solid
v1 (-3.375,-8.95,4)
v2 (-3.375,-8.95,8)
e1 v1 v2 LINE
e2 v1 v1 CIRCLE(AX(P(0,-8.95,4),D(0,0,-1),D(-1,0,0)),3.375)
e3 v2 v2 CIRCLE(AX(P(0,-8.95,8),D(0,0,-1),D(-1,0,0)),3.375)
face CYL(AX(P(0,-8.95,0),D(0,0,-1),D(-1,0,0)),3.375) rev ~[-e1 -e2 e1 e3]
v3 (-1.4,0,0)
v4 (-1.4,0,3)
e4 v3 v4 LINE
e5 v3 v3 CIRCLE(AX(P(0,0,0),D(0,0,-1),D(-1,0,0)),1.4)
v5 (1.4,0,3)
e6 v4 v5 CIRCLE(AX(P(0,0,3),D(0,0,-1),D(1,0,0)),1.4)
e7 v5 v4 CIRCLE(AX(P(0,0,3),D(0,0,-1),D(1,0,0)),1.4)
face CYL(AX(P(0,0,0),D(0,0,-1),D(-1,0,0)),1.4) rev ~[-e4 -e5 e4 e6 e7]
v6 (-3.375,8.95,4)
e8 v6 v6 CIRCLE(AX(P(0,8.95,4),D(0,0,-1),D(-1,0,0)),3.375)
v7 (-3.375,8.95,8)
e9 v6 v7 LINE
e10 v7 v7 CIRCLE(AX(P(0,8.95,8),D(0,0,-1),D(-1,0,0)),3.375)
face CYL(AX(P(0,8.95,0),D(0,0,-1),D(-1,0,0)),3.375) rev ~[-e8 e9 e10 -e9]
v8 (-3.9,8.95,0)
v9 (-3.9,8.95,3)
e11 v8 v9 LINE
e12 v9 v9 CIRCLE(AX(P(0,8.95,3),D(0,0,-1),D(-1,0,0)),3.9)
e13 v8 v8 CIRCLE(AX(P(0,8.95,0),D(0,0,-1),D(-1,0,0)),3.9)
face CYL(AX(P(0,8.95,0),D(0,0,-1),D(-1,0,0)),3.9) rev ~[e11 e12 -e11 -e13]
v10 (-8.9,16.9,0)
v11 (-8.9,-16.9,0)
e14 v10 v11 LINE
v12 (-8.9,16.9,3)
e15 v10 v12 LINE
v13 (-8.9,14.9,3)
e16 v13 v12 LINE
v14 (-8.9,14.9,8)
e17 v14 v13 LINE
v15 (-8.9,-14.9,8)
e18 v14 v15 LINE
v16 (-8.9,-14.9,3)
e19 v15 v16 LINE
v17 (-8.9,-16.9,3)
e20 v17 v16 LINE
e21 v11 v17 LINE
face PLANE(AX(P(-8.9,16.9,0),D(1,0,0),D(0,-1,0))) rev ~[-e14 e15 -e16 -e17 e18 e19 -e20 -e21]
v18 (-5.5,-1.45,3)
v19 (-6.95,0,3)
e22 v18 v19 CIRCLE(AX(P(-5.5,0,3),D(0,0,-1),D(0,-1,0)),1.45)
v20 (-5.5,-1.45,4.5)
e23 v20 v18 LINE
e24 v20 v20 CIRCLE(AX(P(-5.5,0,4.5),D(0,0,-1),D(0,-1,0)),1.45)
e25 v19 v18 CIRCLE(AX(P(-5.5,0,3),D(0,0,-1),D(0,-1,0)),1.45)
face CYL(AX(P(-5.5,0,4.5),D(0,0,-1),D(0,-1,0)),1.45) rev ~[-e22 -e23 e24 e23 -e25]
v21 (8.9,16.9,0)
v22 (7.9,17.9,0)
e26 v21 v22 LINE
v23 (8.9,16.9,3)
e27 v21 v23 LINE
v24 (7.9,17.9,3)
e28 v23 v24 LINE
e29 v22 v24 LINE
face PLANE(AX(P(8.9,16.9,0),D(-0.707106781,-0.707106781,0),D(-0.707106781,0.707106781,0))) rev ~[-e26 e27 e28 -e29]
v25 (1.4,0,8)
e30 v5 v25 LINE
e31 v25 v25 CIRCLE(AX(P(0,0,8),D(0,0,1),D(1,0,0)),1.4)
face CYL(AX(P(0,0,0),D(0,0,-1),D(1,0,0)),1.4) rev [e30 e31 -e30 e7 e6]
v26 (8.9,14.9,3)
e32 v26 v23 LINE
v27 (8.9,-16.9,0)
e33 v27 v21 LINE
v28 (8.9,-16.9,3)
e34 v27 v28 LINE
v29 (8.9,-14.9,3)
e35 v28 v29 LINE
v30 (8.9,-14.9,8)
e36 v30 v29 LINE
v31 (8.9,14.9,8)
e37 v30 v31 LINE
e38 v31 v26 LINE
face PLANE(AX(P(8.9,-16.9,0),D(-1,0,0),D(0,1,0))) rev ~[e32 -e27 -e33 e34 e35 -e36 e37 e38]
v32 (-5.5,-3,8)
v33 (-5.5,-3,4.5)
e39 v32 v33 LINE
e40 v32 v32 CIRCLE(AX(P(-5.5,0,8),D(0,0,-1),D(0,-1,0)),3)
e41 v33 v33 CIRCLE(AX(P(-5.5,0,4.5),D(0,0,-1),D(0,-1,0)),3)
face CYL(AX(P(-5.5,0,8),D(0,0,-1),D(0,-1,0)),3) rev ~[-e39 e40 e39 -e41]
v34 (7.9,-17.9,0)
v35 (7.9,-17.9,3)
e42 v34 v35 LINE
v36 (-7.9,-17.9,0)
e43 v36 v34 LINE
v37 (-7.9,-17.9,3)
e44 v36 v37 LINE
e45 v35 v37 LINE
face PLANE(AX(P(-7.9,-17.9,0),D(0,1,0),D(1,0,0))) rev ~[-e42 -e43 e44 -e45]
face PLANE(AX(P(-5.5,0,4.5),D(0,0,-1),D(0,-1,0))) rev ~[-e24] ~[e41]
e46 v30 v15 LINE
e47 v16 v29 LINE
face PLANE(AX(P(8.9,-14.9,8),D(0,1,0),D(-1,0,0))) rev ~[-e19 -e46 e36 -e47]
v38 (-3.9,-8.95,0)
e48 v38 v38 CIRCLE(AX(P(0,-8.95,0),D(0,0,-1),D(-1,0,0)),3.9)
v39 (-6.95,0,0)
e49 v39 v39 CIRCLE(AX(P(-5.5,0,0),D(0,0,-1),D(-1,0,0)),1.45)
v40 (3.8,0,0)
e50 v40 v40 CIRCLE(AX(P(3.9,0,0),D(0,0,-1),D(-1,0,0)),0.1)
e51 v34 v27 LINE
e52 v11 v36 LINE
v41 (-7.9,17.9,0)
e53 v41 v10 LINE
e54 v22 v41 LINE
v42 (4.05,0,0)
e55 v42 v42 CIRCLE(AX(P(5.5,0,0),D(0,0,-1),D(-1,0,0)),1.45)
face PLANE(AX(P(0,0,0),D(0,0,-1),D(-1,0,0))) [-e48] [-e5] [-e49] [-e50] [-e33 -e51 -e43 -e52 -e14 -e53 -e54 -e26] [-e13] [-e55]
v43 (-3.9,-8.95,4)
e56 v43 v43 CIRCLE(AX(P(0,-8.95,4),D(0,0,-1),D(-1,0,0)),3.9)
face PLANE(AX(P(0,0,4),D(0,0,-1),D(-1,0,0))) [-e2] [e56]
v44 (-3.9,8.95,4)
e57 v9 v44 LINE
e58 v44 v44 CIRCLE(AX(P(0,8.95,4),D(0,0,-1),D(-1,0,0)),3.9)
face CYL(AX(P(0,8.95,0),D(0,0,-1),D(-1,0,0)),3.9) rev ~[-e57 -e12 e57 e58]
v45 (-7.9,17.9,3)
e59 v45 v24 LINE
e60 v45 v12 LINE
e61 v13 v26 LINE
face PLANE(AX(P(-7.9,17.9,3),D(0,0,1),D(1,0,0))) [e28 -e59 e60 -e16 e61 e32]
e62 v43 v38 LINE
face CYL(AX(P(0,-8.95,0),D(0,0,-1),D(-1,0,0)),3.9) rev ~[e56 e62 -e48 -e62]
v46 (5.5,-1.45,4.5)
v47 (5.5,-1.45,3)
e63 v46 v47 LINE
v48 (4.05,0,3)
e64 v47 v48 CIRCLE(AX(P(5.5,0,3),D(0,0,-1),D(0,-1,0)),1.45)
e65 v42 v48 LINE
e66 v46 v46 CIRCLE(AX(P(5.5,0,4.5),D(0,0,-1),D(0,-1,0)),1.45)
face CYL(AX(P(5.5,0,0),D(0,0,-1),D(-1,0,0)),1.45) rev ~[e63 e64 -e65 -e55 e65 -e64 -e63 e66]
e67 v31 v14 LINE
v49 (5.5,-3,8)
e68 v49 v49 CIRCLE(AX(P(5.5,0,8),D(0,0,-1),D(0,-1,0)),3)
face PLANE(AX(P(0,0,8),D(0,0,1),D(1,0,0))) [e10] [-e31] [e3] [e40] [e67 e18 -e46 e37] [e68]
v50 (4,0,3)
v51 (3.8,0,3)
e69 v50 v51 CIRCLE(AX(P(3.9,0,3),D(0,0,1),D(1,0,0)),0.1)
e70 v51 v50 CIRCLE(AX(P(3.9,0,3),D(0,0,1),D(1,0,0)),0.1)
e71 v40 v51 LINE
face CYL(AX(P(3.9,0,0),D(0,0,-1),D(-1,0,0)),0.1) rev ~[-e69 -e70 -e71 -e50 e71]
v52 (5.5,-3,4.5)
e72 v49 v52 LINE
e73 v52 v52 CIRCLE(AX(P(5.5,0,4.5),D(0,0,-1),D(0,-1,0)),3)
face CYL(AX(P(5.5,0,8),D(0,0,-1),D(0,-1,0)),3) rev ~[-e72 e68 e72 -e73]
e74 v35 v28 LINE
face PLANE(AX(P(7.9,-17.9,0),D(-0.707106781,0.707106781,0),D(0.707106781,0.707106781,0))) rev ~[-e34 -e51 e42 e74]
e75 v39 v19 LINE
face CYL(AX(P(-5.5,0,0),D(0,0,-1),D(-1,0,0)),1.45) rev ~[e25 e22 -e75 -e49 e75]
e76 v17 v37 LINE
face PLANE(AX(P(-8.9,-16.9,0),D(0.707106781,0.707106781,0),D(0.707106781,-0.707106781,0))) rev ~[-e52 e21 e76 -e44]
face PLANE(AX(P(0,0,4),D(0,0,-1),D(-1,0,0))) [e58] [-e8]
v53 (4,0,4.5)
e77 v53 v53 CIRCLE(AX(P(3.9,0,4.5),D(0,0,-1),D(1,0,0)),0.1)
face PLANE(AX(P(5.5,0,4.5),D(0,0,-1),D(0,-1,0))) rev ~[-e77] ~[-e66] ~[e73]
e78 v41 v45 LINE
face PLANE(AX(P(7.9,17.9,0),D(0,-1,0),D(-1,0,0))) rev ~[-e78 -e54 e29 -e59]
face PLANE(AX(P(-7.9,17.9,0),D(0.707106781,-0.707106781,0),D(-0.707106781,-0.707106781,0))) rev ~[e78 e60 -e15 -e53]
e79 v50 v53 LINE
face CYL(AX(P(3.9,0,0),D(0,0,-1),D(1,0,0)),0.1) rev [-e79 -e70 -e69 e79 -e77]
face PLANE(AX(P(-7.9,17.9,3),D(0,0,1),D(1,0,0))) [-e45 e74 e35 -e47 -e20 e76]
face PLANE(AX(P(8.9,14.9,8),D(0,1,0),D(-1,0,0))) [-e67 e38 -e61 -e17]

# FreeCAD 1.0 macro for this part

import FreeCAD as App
import Part
import Sketcher
from FreeCAD import Vector
Q = App.Units.Quantity


def add_polygon(sketch, points):
    """Adds a closed chain of lines whose ends are joined by coincident constraints."""
    first, n = sketch.GeometryCount, len(points)
    for a, b in zip(points, points[1:] + points[:1]):
        sketch.addGeometry(Part.LineSegment(App.Vector(*a, 0), App.Vector(*b, 0)), False)
    for i in range(n):
        sketch.addConstraint(Sketcher.Constraint("Coincident", first + i, 2, first + (i + 1) % n, 1))

doc = App.newDocument("Part")
params = doc.addObject("Spreadsheet::Sheet", "Params")
for row, (alias, value) in enumerate([
    ("sketch1_diameter", "2.8 mm"),
    ("sketch1_diameter2", "0.2 mm"),
    ("sketch1_width", "15.8 mm"),
    ("sketch1_height", "33.8 mm"),
    ("pad1_length", "8 mm"),
    ("sketch2_diameter", "2.9 mm"),
    ("hole_diameter", "2.9 mm"),
    ("hole_cbore_diameter", "6 mm"),
    ("hole_cbore_depth", "3.5 mm"),
    ("sketch3_diameter", "6.75 mm"),
    ("pocket1_length", "10 mm"),
    ("sketch4_diameter", "7.8 mm"),
    ("sketch4_diameter2", "6.75 mm"),
    ("pocket2_length", "4 mm"),
    ("sketch5_diameter", "0.2 mm"),
    ("pocket3_length", "3 mm"),
    ("sketch6_height", "3 mm"),
    ("sketch6_width", "17.8 mm"),
    ("pocket4_length", "5 mm"),
    ("sketch7_height", "3 mm"),
    ("sketch7_width", "14.8 mm"),
    ("pad2_length", "3 mm"),
    ("sketch8_diameter", "7.8 mm"),
    ("sketch8_diameter2", "2.9 mm"),
    ("sketch8_diameter3", "0.2 mm"),
    ("sketch8_diameter4", "2.8 mm"),
    ("sketch8_width", "14.8 mm"),
    ("pad3_length", "3 mm"),
], start=1):
    params.set(f"A{row}", alias)
    params.set(f"B{row}", "=" + value)
    params.setAlias(f"B{row}", alias)

body = doc.addObject("PartDesign::Body", "Body")

# Sketch on XY plane
sketch1 = body.newObject("Sketcher::SketchObject", "Sketch")
sketch1.AttachmentSupport = (doc.getObject("XY_Plane"), [""])
sketch1.MapMode = "FlatFace"
add_polygon(sketch1, [(8.9, -16.9), (8.9, 16.9), (7.9, 17.9), (-7.9, 17.9), (-8.9, 16.9), (-8.9, -16.9), (-7.9, -17.9), (7.9, -17.9)])  # lines 0-7
sketch1.addGeometry(Part.Circle(Vector(0, 0, 0), Vector(0, 0, 1), 1.4), False)  # 8
sketch1.addGeometry(Part.Circle(Vector(3.9, 0, 0), Vector(0, 0, 1), 0.1), False)  # 9
sketch1.addConstraint([
    Sketcher.Constraint("Vertical", 0),
    Sketcher.Constraint("Horizontal", 2),
    Sketcher.Constraint("Vertical", 4),
    Sketcher.Constraint("Horizontal", 6),
    Sketcher.Constraint("Coincident", 8, 3, -1, 1),
    Sketcher.Constraint("Symmetric", 0, 2, 4, 2, -1, 1),
    Sketcher.Constraint("Symmetric", 1, 2, 5, 2, -1, 1),
    Sketcher.Constraint("PointOnObject", 9, 3, -1),
    Sketcher.Constraint("Perpendicular", 1, 3),
    Sketcher.Constraint("Perpendicular", 5, 7),
    Sketcher.Constraint("Horizontal", 0, 2, 3, 2),
    Sketcher.Constraint("Horizontal", 4, 2, 7, 2),
    Sketcher.Constraint("Vertical", 2, 2, 5, 2),
    Sketcher.Constraint("Diameter", 8, Q("2.8 mm")),
    Sketcher.Constraint("Diameter", 9, Q("0.2 mm")),
    Sketcher.Constraint("DistanceX", 2, 2, 2, 1, Q("15.8 mm")),
    Sketcher.Constraint("DistanceY", 0, 1, 0, 2, Q("33.8 mm")),
    Sketcher.Constraint("DistanceX", 9, 3, 0, 2, Q("5 mm")),
    Sketcher.Constraint("DistanceX", 1, 2, 0, 2, Q("1 mm")),
])
sketch1.setExpression("Constraints[21]", "Params.sketch1_diameter")
sketch1.setExpression("Constraints[22]", "Params.sketch1_diameter2")
sketch1.setExpression("Constraints[23]", "Params.sketch1_width")
sketch1.setExpression("Constraints[24]", "Params.sketch1_height")
pad1 = body.newObject("PartDesign::Pad", "Pad")
pad1.Profile = sketch1
pad1.setExpression("Length", "Params.pad1_length")

# Sketch on XY plane
sketch2 = body.newObject("Sketcher::SketchObject", "Sketch001")
sketch2.AttachmentSupport = (doc.getObject("XY_Plane"), [""])
sketch2.MapMode = "FlatFace"
sketch2.AttachmentOffset = App.Placement(Vector(0, 0, 8), App.Rotation())
sketch2.addGeometry([
    Part.Circle(Vector(5.5, 0, 0), Vector(0, 0, 1), 1.4),
    Part.Circle(Vector(-5.5, 0, 0), Vector(0, 0, 1), 1.4),
], False)
sketch2.addConstraint([
    Sketcher.Constraint("Equal", 0, 1),
    Sketcher.Constraint("Symmetric", 0, 3, 1, 3, -1, 1),
    Sketcher.Constraint("PointOnObject", 0, 3, -1),
    Sketcher.Constraint("Diameter", 0, Q("2.9 mm")),
    Sketcher.Constraint("DistanceX", 1, 3, 0, 3, Q("11 mm")),
])
sketch2.setExpression("Constraints[3]", "Params.sketch2_diameter")
doc.recompute()
hole = body.newObject("PartDesign::Hole", "Hole")
hole.Profile = sketch2
hole.ThreadType = "None"
hole.setExpression("Diameter", "Params.hole_diameter")
hole.DepthType = "ThroughAll"
hole.HoleCutType = "Counterbore"
hole.setExpression("HoleCutDiameter", "Params.hole_cbore_diameter")
hole.setExpression("HoleCutDepth", "Params.hole_cbore_depth")

# Sketch on XY plane
sketch3 = body.newObject("Sketcher::SketchObject", "Sketch002")
sketch3.AttachmentSupport = (doc.getObject("XY_Plane"), [""])
sketch3.MapMode = "FlatFace"
sketch3.addGeometry([
    Part.Circle(Vector(0, 8.9, 0), Vector(0, 0, 1), 3.4),
    Part.Circle(Vector(0, -8.9, 0), Vector(0, 0, 1), 3.4),
], False)
sketch3.addConstraint([
    Sketcher.Constraint("Equal", 0, 1),
    Sketcher.Constraint("Symmetric", 0, 3, 1, 3, -1, 1),
    Sketcher.Constraint("PointOnObject", 0, 3, -2),
    Sketcher.Constraint("Diameter", 0, Q("6.75 mm")),
    Sketcher.Constraint("DistanceY", 1, 3, 0, 3, Q("17.9 mm")),
])
sketch3.setExpression("Constraints[3]", "Params.sketch3_diameter")
pocket1 = body.newObject("PartDesign::Pocket", "Pocket")
pocket1.Profile = sketch3
pocket1.setExpression("Length", "Params.pocket1_length")
pocket1.Reversed = True

# Sketch on XY plane
sketch4 = body.newObject("Sketcher::SketchObject", "Sketch003")
sketch4.AttachmentSupport = (doc.getObject("XY_Plane"), [""])
sketch4.MapMode = "FlatFace"
sketch4.addGeometry([
    Part.Circle(Vector(0, 8.9, 0), Vector(0, 0, 1), 3.9),
    Part.Circle(Vector(0, 8.9, 0), Vector(0, 0, 1), 3.4),
    Part.Circle(Vector(0, -8.9, 0), Vector(0, 0, 1), 3.9),
    Part.Circle(Vector(0, -8.9, 0), Vector(0, 0, 1), 3.4),
], False)
sketch4.addConstraint([
    Sketcher.Constraint("Coincident", 1, 3, 0, 3),
    Sketcher.Constraint("Coincident", 3, 3, 2, 3),
    Sketcher.Constraint("Equal", 0, 2),
    Sketcher.Constraint("Equal", 1, 3),
    Sketcher.Constraint("Symmetric", 0, 3, 2, 3, -1, 1),
    Sketcher.Constraint("PointOnObject", 0, 3, -2),
    Sketcher.Constraint("Diameter", 0, Q("7.8 mm")),
    Sketcher.Constraint("Diameter", 1, Q("6.75 mm")),
    Sketcher.Constraint("DistanceY", 2, 3, 0, 3, Q("17.9 mm")),
])
sketch4.setExpression("Constraints[6]", "Params.sketch4_diameter")
sketch4.setExpression("Constraints[7]", "Params.sketch4_diameter2")
pocket2 = body.newObject("PartDesign::Pocket", "Pocket001")
pocket2.Profile = sketch4
pocket2.setExpression("Length", "Params.pocket2_length")
pocket2.Reversed = True

# Sketch on XY plane
sketch5 = body.newObject("Sketcher::SketchObject", "Sketch004")
sketch5.AttachmentSupport = (doc.getObject("XY_Plane"), [""])
sketch5.MapMode = "FlatFace"
add_polygon(sketch5, [(-7.28, -16.4), (-7.4, -16.28), (-7.4, 16.28), (-7.28, 16.4), (7.28, 16.4), (7.4, 16.28), (7.4, -16.28), (7.28, -16.4)])  # lines 0-7
sketch5.addGeometry(Part.Circle(Vector(3.9, 0, 0), Vector(0, 0, 1), 0.1), False)  # 8
sketch5.addConstraint([
    Sketcher.Constraint("Vertical", 1),
    Sketcher.Constraint("Horizontal", 3),
    Sketcher.Constraint("Vertical", 5),
    Sketcher.Constraint("Horizontal", 7),
    Sketcher.Constraint("Symmetric", 0, 2, 4, 2, -1, 1),
    Sketcher.Constraint("Symmetric", 2, 2, 6, 2, -1, 1),
    Sketcher.Constraint("PointOnObject", 8, 3, -1),
    Sketcher.Constraint("Perpendicular", 0, 2),
    Sketcher.Constraint("Perpendicular", 2, 4),
    Sketcher.Constraint("Perpendicular", 4, 6),
    Sketcher.Constraint("Horizontal", 1, 2, 4, 2),
    Sketcher.Constraint("Vertical", 3, 2, 6, 2),
    Sketcher.Constraint("Diameter", 8, Q("0.2 mm")),
    Sketcher.Constraint("DistanceX", -1, 1, 8, 3, Q("3.9 mm")),
    Sketcher.Constraint("DistanceX", 0, 2, -1, 1, Q("7.4 mm")),
    Sketcher.Constraint("DistanceY", -1, 1, 2, 2, Q("16.4 mm")),
    Sketcher.Constraint("DistanceX", 3, 1, 3, 2, Q("14.5574 mm")),
])
sketch5.setExpression("Constraints[20]", "Params.sketch5_diameter")
pocket3 = body.newObject("PartDesign::Pocket", "Pocket002")
pocket3.Profile = sketch5
pocket3.setExpression("Length", "Params.pocket3_length")
pocket3.Reversed = True

# Sketch on XY plane
sketch6 = body.newObject("Sketcher::SketchObject", "Sketch005")
sketch6.AttachmentSupport = (doc.getObject("XY_Plane"), [""])
sketch6.MapMode = "FlatFace"
sketch6.AttachmentOffset = App.Placement(Vector(0, 0, 8), App.Rotation())
add_polygon(sketch6, [(8.9, 14.9), (8.9, 17.9), (-8.9, 17.9), (-8.9, 14.9)])  # lines 0-3
add_polygon(sketch6, [(8.9, -14.9), (-8.9, -14.9), (-8.9, -17.9), (8.9, -17.9)])  # lines 4-7
sketch6.addConstraint([
    Sketcher.Constraint("Vertical", 0),
    Sketcher.Constraint("Horizontal", 1),
    Sketcher.Constraint("Vertical", 2),
    Sketcher.Constraint("Horizontal", 3),
    Sketcher.Constraint("Horizontal", 4),
    Sketcher.Constraint("Vertical", 5),
    Sketcher.Constraint("Horizontal", 6),
    Sketcher.Constraint("Vertical", 7),
    Sketcher.Constraint("Symmetric", 3, 2, 4, 2, -1, 1),
    Sketcher.Constraint("Symmetric", 1, 2, 6, 2, -1, 1),
    Sketcher.Constraint("Vertical", 2, 2, 4, 2),
    Sketcher.Constraint("DistanceY", 0, 1, 0, 2, Q("3 mm")),
    Sketcher.Constraint("DistanceX", 1, 2, 1, 1, Q("17.8 mm")),
    Sketcher.Constraint("DistanceY", -1, 1, 0, 2, Q("17.9 mm")),
])
sketch6.setExpression("Constraints[19]", "Params.sketch6_height")
sketch6.setExpression("Constraints[20]", "Params.sketch6_width")
pocket4 = body.newObject("PartDesign::Pocket", "Pocket003")
pocket4.Profile = sketch6
pocket4.setExpression("Length", "Params.pocket4_length")

# Sketch on XY plane
sketch7 = body.newObject("Sketcher::SketchObject", "Sketch006")
sketch7.AttachmentSupport = (doc.getObject("XY_Plane"), [""])
sketch7.MapMode = "FlatFace"
add_polygon(sketch7, [(-7.4, 16.28), (-7.28, 16.4), (7.4, 16.4), (7.4, 13.4), (-7.4, 13.4)])  # lines 0-4
add_polygon(sketch7, [(-7.4, -13.4), (7.4, -13.4), (7.4, -16.4), (-7.4, -16.4)])  # lines 5-8
sketch7.addConstraint([
    Sketcher.Constraint("Horizontal", 1),
    Sketcher.Constraint("Vertical", 2),
    Sketcher.Constraint("Horizontal", 3),
    Sketcher.Constraint("Vertical", 4),
    Sketcher.Constraint("Horizontal", 5),
    Sketcher.Constraint("Vertical", 6),
    Sketcher.Constraint("Horizontal", 7),
    Sketcher.Constraint("Vertical", 8),
    Sketcher.Constraint("Symmetric", 3, 2, 5, 2, -1, 1),
    Sketcher.Constraint("Symmetric", 1, 2, 7, 2, -1, 1),
    Sketcher.Constraint("Vertical", 2, 2, 5, 2),
    Sketcher.Constraint("DistanceY", 2, 2, 2, 1, Q("3 mm")),
    Sketcher.Constraint("Angle", 0, Q("45 deg")),
    Sketcher.Constraint("DistanceX", 3, 2, 3, 1, Q("14.8 mm")),
    Sketcher.Constraint("DistanceY", -1, 1, 0, 2, Q("16.4 mm")),
    Sketcher.Constraint("DistanceX", 1, 1, 1, 2, Q("14.6787 mm")),
])
sketch7.setExpression("Constraints[20]", "Params.sketch7_height")
sketch7.setExpression("Constraints[22]", "Params.sketch7_width")
pad2 = body.newObject("PartDesign::Pad", "Pad001")
pad2.Profile = sketch7
pad2.setExpression("Length", "Params.pad2_length")

# Sketch on XY plane
sketch8 = body.newObject("Sketcher::SketchObject", "Sketch007")
sketch8.AttachmentSupport = (doc.getObject("XY_Plane"), [""])
sketch8.MapMode = "FlatFace"
add_polygon(sketch8, [(-7.4, -13.4), (-7.4, 13.4), (7.4, 13.4), (7.4, -13.4)])  # lines 0-3
sketch8.addGeometry(Part.Circle(Vector(0, -8.95, 0), Vector(0, 0, 1), 3.9), False)  # 4
sketch8.addGeometry(Part.Circle(Vector(5.5, 0, 0), Vector(0, 0, 1), 1.45), False)  # 5
sketch8.addGeometry(Part.Circle(Vector(3.9, 0, 0), Vector(0, 0, 1), 0.1), False)  # 6
sketch8.addGeometry(Part.Circle(Vector(0, 0, 0), Vector(0, 0, 1), 1.4), False)  # 7
sketch8.addGeometry(Part.Circle(Vector(-5.5, 0, 0), Vector(0, 0, 1), 1.45), False)  # 8
sketch8.addGeometry(Part.Circle(Vector(0, 8.95, 0), Vector(0, 0, 1), 3.9), False)  # 9
sketch8.addConstraint([
    Sketcher.Constraint("Vertical", 0),
    Sketcher.Constraint("Horizontal", 1),
    Sketcher.Constraint("Vertical", 2),
    Sketcher.Constraint("Horizontal", 3),
    Sketcher.Constraint("Coincident", 7, 3, -1, 1),
    Sketcher.Constraint("Equal", 5, 8),
    Sketcher.Constraint("Equal", 4, 9),
    Sketcher.Constraint("Symmetric", 5, 3, 8, 3, -1, 1),
    Sketcher.Constraint("Symmetric", 4, 3, 9, 3, -1, 1),
    Sketcher.Constraint("Symmetric", 0, 2, 2, 2, -1, 1),
    Sketcher.Constraint("PointOnObject", 4, 3, -2),
    Sketcher.Constraint("PointOnObject", 5, 3, -1),
    Sketcher.Constraint("PointOnObject", 6, 3, -1),
    Sketcher.Constraint("Diameter", 4, Q("7.8 mm")),
    Sketcher.Constraint("Diameter", 5, Q("2.9 mm")),
    Sketcher.Constraint("Diameter", 6, Q("0.2 mm")),
    Sketcher.Constraint("Diameter", 7, Q("2.8 mm")),
    Sketcher.Constraint("DistanceX", 1, 1, 1, 2, Q("14.8 mm")),
    Sketcher.Constraint("DistanceY", 0, 1, 0, 2, Q("26.8 mm")),
    Sketcher.Constraint("DistanceX", 8, 3, 5, 3, Q("11 mm")),
    Sketcher.Constraint("DistanceX", -1, 1, 6, 3, Q("3.9 mm")),
    Sketcher.Constraint("DistanceY", 4, 3, 9, 3, Q("17.9 mm")),
])
sketch8.setExpression("Constraints[17]", "Params.sketch8_diameter")
sketch8.setExpression("Constraints[18]", "Params.sketch8_diameter2")
sketch8.setExpression("Constraints[19]", "Params.sketch8_diameter3")
sketch8.setExpression("Constraints[20]", "Params.sketch8_diameter4")
sketch8.setExpression("Constraints[21]", "Params.sketch8_width")
pad3 = body.newObject("PartDesign::Pad", "Pad002")
pad3.Profile = sketch8
pad3.setExpression("Length", "Params.pad3_length")

doc.recompute()
